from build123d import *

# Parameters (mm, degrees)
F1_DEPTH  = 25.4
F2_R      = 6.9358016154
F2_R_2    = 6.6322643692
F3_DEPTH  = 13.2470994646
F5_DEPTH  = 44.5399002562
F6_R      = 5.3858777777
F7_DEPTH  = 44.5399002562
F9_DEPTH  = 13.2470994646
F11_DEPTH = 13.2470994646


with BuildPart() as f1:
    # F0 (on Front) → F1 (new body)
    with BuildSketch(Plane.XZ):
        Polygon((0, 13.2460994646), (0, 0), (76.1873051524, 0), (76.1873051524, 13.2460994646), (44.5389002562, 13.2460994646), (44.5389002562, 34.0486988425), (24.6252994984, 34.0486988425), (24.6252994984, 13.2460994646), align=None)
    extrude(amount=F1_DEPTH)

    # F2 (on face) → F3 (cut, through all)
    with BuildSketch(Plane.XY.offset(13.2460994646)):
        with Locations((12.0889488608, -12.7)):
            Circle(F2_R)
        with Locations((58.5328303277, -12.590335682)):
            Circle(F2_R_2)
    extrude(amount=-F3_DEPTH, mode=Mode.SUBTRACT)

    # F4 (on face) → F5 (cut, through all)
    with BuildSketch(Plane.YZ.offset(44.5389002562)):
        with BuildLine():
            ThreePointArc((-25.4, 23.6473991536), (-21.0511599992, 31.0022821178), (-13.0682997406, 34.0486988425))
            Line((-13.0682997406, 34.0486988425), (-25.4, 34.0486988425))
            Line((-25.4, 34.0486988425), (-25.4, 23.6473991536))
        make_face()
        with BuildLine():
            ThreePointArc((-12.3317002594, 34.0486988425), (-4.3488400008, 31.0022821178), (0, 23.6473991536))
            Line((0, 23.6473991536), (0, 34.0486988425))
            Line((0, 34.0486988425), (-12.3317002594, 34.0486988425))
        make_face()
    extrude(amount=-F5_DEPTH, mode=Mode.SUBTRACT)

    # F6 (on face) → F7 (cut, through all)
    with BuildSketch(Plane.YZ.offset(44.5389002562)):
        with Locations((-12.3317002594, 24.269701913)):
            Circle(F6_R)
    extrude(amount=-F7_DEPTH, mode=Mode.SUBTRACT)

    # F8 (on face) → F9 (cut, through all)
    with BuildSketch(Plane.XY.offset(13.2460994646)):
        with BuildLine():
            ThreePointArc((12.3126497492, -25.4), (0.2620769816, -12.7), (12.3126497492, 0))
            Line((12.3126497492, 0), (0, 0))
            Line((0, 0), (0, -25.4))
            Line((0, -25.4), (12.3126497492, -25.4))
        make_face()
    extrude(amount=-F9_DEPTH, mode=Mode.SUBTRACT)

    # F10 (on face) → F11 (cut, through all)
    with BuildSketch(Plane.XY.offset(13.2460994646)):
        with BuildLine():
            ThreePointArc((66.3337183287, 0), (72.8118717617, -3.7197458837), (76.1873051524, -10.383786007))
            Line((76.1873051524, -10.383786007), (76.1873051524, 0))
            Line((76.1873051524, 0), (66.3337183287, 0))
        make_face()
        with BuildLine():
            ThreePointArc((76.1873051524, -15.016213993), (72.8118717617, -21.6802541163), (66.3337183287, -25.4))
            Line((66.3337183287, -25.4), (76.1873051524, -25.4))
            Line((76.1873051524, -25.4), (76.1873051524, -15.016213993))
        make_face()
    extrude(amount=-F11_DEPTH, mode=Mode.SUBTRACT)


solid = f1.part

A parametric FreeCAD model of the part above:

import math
import FreeCAD as App
import Part
import Sketcher
from FreeCAD import Vector
Q = App.Units.Quantity

doc = App.newDocument("Part")
body = doc.addObject("PartDesign::Body", "Body")

# Sketch on XZ plane
sketch1 = body.newObject("Sketcher::SketchObject", "Sketch")
sketch1.AttachmentSupport = (doc.getObject("XZ_Plane"), [""])
sketch1.MapMode = "FlatFace"
sketch1.addGeometry([
    Part.LineSegment(Vector(0, 13, 0), Vector(0, 0, 0)),  # 0
    Part.LineSegment(Vector(0, 0, 0), Vector(76, 0, 0)),  # 1
    Part.LineSegment(Vector(76, 0, 0), Vector(76, 13, 0)),  # 2
    Part.LineSegment(Vector(76, 13, 0), Vector(45, 13, 0)),  # 3
    Part.LineSegment(Vector(45, 13, 0), Vector(45, 34, 0)),  # 4
    Part.LineSegment(Vector(45, 34, 0), Vector(25, 34, 0)),  # 5
    Part.LineSegment(Vector(25, 34, 0), Vector(25, 13, 0)),  # 6
    Part.LineSegment(Vector(25, 13, 0), Vector(0, 13, 0)),  # 7
], False)
sketch1.addConstraint([
    Sketcher.Constraint("Coincident", 0, 2, 1, 1),
    Sketcher.Constraint("Coincident", 1, 2, 2, 1),
    Sketcher.Constraint("Coincident", 2, 2, 3, 1),
    Sketcher.Constraint("Coincident", 3, 2, 4, 1),
    Sketcher.Constraint("Coincident", 4, 2, 5, 1),
    Sketcher.Constraint("Coincident", 5, 2, 6, 1),
    Sketcher.Constraint("Coincident", 6, 2, 7, 1),
    Sketcher.Constraint("Coincident", 7, 2, 0, 1),
    Sketcher.Constraint("Vertical", 0),
    Sketcher.Constraint("Horizontal", 1),
    Sketcher.Constraint("Vertical", 2),
    Sketcher.Constraint("Horizontal", 3),
    Sketcher.Constraint("Vertical", 4),
    Sketcher.Constraint("Horizontal", 5),
    Sketcher.Constraint("Vertical", 6),
    Sketcher.Constraint("Horizontal", 7),
    Sketcher.Constraint("Coincident", 0, 2, -1, 1),
    Sketcher.Constraint("Horizontal", 3, 2, 6, 2),
    Sketcher.Constraint("DistanceX", 3, 2, 3, 1, Q("1.2460002 in")),
    Sketcher.Constraint("DistanceX", 5, 2, 5, 1, Q("0.784 in")),
    Sketcher.Constraint("DistanceY", 4, 1, 4, 2, Q("0.819 in")),
    Sketcher.Constraint("DistanceX", 7, 2, 7, 1, Q("0.9695 in")),
    Sketcher.Constraint("DistanceY", 0, 2, 0, 1, Q("0.5215 in")),
])
pad1 = body.newObject("PartDesign::Pad", "Pad")
pad1.Profile = sketch1
pad1.Length = Q("1 in")

# Sketch on XY plane
sketch2 = body.newObject("Sketcher::SketchObject", "Sketch001")
sketch2.AttachmentSupport = (doc.getObject("XY_Plane"), [""])
sketch2.MapMode = "FlatFace"
sketch2.AttachmentOffset = App.Placement(Vector(0, 0, 0.5215 * 25.4), App.Rotation())
sketch2.addGeometry([
    Part.Circle(Vector(12, -13, 0), Vector(0, 0, 1), 7),
    Part.Circle(Vector(59, -13, 0), Vector(0, 0, 1), 7),
], False)
sketch2.addConstraint([
    Sketcher.Constraint("DistanceY", 0, 3, -1, 1, Q("0.5 in")),
    Sketcher.Constraint("Diameter", 1, Q("13.264529 mm")),
    Sketcher.Constraint("Diameter", 0, Q("13.871603 mm")),
    Sketcher.Constraint("DistanceX", -1, 1, 0, 3, Q("12.088949 mm")),
    Sketcher.Constraint("DistanceX", -1, 1, 1, 3, Q("58.53283 mm")),
    Sketcher.Constraint("DistanceY", 1, 3, -1, 1, Q("12.590336 mm")),
])
pocket1 = body.newObject("PartDesign::Pocket", "Pocket")
pocket1.Profile = sketch2
pocket1.Type = "ThroughAll"

# Sketch on YZ plane
sketch3 = body.newObject("Sketcher::SketchObject", "Sketch002")
sketch3.AttachmentSupport = (doc.getObject("YZ_Plane"), [""])
sketch3.MapMode = "FlatFace"
sketch3.AttachmentOffset = App.Placement(Vector(0, 0, 1.7535 * 25.4), App.Rotation())
sketch3.addGeometry([
    Part.ArcOfCircle(Part.Circle(Vector(-13, 21, 0), Vector(0, 0, 1), 13), math.radians(92), math.radians(169)),  # 0
    Part.LineSegment(Vector(-13, 34, 0), Vector(-25, 34, 0)),  # 1
    Part.LineSegment(Vector(-25, 34, 0), Vector(-25, 24, 0)),  # 2
    Part.ArcOfCircle(Part.Circle(Vector(-13, 21, 0), Vector(0, 0, 1), 13), math.radians(11), math.radians(88)),  # 3
    Part.LineSegment(Vector(0, 24, 0), Vector(0, 34, 0)),  # 4
    Part.LineSegment(Vector(0, 34, 0), Vector(-12, 34, 0)),  # 5
], False)
sketch3.addConstraint([
    Sketcher.Constraint("Coincident", 0, 1, 1, 1),
    Sketcher.Constraint("Coincident", 1, 2, 2, 1),
    Sketcher.Constraint("Coincident", 2, 2, 0, 2),
    Sketcher.Constraint("Coincident", 3, 1, 4, 1),
    Sketcher.Constraint("Coincident", 4, 2, 5, 1),
    Sketcher.Constraint("Coincident", 5, 2, 3, 2),
    Sketcher.Constraint("Horizontal", 1),
    Sketcher.Constraint("Vertical", 2),
    Sketcher.Constraint("Vertical", 4),
    Sketcher.Constraint("Horizontal", 5),
    Sketcher.Constraint("Coincident", 3, 3, 0, 3),
    Sketcher.Constraint("Equal", 0, 3),
    Sketcher.Constraint("PointOnObject", 3, 1, -2),
    Sketcher.Constraint("Horizontal", 2, 2, 3, 1),
    Sketcher.Constraint("Horizontal", 1, 2, 4, 2),
    Sketcher.Constraint("DistanceX", 1, 2, -1, 1, Q("1 in")),
    Sketcher.Constraint("DistanceX", 1, 2, 1, 1, Q("0.4855 in")),
    Sketcher.Constraint("DistanceY", 2, 2, 2, 1, Q("0.4095 in")),
    Sketcher.Constraint("DistanceY", -1, 1, 2, 2, Q("0.931 in")),
])
pocket2 = body.newObject("PartDesign::Pocket", "Pocket001")
pocket2.Profile = sketch3
pocket2.Type = "ThroughAll"

# Sketch on YZ plane
sketch4 = body.newObject("Sketcher::SketchObject", "Sketch003")
sketch4.AttachmentSupport = (doc.getObject("YZ_Plane"), [""])
sketch4.MapMode = "FlatFace"
sketch4.AttachmentOffset = App.Placement(Vector(0, 0, 1.7535 * 25.4), App.Rotation())
sketch4.addGeometry(Part.Circle(Vector(-12, 24, 0), Vector(0, 0, 1), 5), False)
sketch4.addConstraint([
    Sketcher.Constraint("Diameter", 0, Q("10.771756 mm")),
    Sketcher.Constraint("DistanceX", 0, 3, -1, 1, Q("0.4855 in")),
    Sketcher.Constraint("DistanceY", -1, 1, 0, 3, Q("0.9555001 in")),
])
pocket3 = body.newObject("PartDesign::Pocket", "Pocket002")
pocket3.Profile = sketch4
pocket3.Type = "ThroughAll"

# Sketch on XY plane
sketch5 = body.newObject("Sketcher::SketchObject", "Sketch004")
sketch5.AttachmentSupport = (doc.getObject("XY_Plane"), [""])
sketch5.MapMode = "FlatFace"
sketch5.AttachmentOffset = App.Placement(Vector(0, 0, 0.5215 * 25.4), App.Rotation())
sketch5.addGeometry([
    Part.ArcOfCircle(Part.Circle(Vector(13, -13, 0), Vector(0, 0, 1), 13), math.radians(93), math.radians(267)),
    Part.LineSegment(Vector(12, 0, 0), Vector(0, 0, 0)),
    Part.LineSegment(Vector(0, 0, 0), Vector(0, -25, 0)),
    Part.LineSegment(Vector(0, -25, 0), Vector(12, -25, 0)),
], False)
sketch5.addConstraint([
    Sketcher.Constraint("Coincident", 0, 1, 1, 1),
    Sketcher.Constraint("Coincident", 1, 2, 2, 1),
    Sketcher.Constraint("Coincident", 2, 2, 3, 1),
    Sketcher.Constraint("Coincident", 3, 2, 0, 2),
    Sketcher.Constraint("Horizontal", 1),
    Sketcher.Constraint("Vertical", 2),
    Sketcher.Constraint("Horizontal", 3),
    Sketcher.Constraint("Coincident", 1, 2, -1, 1),
    Sketcher.Constraint("Vertical", 0, 1, 3, 2),
    Sketcher.Constraint("DistanceY", 2, 2, 2, 1, Q("1 in")),
    Sketcher.Constraint("Radius", 0, Q("12.717499 mm")),
    Sketcher.Constraint("DistanceX", 1, 2, 1, 1, Q("12.31265 mm")),
])
pocket4 = body.newObject("PartDesign::Pocket", "Pocket003")
pocket4.Profile = sketch5
pocket4.Type = "ThroughAll"

# Sketch on XY plane
sketch6 = body.newObject("Sketcher::SketchObject", "Sketch005")
sketch6.AttachmentSupport = (doc.getObject("XY_Plane"), [""])
sketch6.MapMode = "FlatFace"
sketch6.AttachmentOffset = App.Placement(Vector(0, 0, 0.5215 * 25.4), App.Rotation())
sketch6.addGeometry([
    Part.ArcOfCircle(Part.Circle(Vector(63, -13, 0), Vector(0, 0, 1), 13), math.radians(10), math.radians(77)),  # 0
    Part.LineSegment(Vector(76, -10, 0), Vector(76, 0, 0)),  # 1
    Part.LineSegment(Vector(76, 0, 0), Vector(66, 0, 0)),  # 2
    Part.ArcOfCircle(Part.Circle(Vector(63, -13, 0), Vector(0, 0, 1), 13), math.radians(-77), math.radians(-10)),  # 3
    Part.LineSegment(Vector(66, -25, 0), Vector(76, -25, 0)),  # 4
    Part.LineSegment(Vector(76, -25, 0), Vector(76, -15, 0)),  # 5
], False)
sketch6.addConstraint([
    Sketcher.Constraint("Coincident", 0, 1, 1, 1),
    Sketcher.Constraint("Coincident", 1, 2, 2, 1),
    Sketcher.Constraint("Coincident", 2, 2, 0, 2),
    Sketcher.Constraint("Coincident", 3, 1, 4, 1),
    Sketcher.Constraint("Coincident", 4, 2, 5, 1),
    Sketcher.Constraint("Coincident", 5, 2, 3, 2),
    Sketcher.Constraint("Vertical", 1),
    Sketcher.Constraint("Horizontal", 2),
    Sketcher.Constraint("Horizontal", 4),
    Sketcher.Constraint("Vertical", 5),
    Sketcher.Constraint("Coincident", 3, 3, 0, 3),
    Sketcher.Constraint("Equal", 0, 3),
    Sketcher.Constraint("PointOnObject", 1, 2, -1),
    Sketcher.Constraint("Vertical", 2, 2, 3, 1),
    Sketcher.Constraint("Vertical", 1, 2, 4, 2),
    Sketcher.Constraint("DistanceY", 3, 1, -1, 1, Q("1 in")),
    Sketcher.Constraint("Radius", 0, Q("13.046151 mm")),
    Sketcher.Constraint("DistanceX", 2, 2, 2, 1, Q("9.853587 mm")),
    Sketcher.Constraint("DistanceX", -1, 1, 0, 3, Q("63.348411 mm")),
])
pocket5 = body.newObject("PartDesign::Pocket", "Pocket004")
pocket5.Profile = sketch6
pocket5.Type = "ThroughAll"

doc.recompute()
